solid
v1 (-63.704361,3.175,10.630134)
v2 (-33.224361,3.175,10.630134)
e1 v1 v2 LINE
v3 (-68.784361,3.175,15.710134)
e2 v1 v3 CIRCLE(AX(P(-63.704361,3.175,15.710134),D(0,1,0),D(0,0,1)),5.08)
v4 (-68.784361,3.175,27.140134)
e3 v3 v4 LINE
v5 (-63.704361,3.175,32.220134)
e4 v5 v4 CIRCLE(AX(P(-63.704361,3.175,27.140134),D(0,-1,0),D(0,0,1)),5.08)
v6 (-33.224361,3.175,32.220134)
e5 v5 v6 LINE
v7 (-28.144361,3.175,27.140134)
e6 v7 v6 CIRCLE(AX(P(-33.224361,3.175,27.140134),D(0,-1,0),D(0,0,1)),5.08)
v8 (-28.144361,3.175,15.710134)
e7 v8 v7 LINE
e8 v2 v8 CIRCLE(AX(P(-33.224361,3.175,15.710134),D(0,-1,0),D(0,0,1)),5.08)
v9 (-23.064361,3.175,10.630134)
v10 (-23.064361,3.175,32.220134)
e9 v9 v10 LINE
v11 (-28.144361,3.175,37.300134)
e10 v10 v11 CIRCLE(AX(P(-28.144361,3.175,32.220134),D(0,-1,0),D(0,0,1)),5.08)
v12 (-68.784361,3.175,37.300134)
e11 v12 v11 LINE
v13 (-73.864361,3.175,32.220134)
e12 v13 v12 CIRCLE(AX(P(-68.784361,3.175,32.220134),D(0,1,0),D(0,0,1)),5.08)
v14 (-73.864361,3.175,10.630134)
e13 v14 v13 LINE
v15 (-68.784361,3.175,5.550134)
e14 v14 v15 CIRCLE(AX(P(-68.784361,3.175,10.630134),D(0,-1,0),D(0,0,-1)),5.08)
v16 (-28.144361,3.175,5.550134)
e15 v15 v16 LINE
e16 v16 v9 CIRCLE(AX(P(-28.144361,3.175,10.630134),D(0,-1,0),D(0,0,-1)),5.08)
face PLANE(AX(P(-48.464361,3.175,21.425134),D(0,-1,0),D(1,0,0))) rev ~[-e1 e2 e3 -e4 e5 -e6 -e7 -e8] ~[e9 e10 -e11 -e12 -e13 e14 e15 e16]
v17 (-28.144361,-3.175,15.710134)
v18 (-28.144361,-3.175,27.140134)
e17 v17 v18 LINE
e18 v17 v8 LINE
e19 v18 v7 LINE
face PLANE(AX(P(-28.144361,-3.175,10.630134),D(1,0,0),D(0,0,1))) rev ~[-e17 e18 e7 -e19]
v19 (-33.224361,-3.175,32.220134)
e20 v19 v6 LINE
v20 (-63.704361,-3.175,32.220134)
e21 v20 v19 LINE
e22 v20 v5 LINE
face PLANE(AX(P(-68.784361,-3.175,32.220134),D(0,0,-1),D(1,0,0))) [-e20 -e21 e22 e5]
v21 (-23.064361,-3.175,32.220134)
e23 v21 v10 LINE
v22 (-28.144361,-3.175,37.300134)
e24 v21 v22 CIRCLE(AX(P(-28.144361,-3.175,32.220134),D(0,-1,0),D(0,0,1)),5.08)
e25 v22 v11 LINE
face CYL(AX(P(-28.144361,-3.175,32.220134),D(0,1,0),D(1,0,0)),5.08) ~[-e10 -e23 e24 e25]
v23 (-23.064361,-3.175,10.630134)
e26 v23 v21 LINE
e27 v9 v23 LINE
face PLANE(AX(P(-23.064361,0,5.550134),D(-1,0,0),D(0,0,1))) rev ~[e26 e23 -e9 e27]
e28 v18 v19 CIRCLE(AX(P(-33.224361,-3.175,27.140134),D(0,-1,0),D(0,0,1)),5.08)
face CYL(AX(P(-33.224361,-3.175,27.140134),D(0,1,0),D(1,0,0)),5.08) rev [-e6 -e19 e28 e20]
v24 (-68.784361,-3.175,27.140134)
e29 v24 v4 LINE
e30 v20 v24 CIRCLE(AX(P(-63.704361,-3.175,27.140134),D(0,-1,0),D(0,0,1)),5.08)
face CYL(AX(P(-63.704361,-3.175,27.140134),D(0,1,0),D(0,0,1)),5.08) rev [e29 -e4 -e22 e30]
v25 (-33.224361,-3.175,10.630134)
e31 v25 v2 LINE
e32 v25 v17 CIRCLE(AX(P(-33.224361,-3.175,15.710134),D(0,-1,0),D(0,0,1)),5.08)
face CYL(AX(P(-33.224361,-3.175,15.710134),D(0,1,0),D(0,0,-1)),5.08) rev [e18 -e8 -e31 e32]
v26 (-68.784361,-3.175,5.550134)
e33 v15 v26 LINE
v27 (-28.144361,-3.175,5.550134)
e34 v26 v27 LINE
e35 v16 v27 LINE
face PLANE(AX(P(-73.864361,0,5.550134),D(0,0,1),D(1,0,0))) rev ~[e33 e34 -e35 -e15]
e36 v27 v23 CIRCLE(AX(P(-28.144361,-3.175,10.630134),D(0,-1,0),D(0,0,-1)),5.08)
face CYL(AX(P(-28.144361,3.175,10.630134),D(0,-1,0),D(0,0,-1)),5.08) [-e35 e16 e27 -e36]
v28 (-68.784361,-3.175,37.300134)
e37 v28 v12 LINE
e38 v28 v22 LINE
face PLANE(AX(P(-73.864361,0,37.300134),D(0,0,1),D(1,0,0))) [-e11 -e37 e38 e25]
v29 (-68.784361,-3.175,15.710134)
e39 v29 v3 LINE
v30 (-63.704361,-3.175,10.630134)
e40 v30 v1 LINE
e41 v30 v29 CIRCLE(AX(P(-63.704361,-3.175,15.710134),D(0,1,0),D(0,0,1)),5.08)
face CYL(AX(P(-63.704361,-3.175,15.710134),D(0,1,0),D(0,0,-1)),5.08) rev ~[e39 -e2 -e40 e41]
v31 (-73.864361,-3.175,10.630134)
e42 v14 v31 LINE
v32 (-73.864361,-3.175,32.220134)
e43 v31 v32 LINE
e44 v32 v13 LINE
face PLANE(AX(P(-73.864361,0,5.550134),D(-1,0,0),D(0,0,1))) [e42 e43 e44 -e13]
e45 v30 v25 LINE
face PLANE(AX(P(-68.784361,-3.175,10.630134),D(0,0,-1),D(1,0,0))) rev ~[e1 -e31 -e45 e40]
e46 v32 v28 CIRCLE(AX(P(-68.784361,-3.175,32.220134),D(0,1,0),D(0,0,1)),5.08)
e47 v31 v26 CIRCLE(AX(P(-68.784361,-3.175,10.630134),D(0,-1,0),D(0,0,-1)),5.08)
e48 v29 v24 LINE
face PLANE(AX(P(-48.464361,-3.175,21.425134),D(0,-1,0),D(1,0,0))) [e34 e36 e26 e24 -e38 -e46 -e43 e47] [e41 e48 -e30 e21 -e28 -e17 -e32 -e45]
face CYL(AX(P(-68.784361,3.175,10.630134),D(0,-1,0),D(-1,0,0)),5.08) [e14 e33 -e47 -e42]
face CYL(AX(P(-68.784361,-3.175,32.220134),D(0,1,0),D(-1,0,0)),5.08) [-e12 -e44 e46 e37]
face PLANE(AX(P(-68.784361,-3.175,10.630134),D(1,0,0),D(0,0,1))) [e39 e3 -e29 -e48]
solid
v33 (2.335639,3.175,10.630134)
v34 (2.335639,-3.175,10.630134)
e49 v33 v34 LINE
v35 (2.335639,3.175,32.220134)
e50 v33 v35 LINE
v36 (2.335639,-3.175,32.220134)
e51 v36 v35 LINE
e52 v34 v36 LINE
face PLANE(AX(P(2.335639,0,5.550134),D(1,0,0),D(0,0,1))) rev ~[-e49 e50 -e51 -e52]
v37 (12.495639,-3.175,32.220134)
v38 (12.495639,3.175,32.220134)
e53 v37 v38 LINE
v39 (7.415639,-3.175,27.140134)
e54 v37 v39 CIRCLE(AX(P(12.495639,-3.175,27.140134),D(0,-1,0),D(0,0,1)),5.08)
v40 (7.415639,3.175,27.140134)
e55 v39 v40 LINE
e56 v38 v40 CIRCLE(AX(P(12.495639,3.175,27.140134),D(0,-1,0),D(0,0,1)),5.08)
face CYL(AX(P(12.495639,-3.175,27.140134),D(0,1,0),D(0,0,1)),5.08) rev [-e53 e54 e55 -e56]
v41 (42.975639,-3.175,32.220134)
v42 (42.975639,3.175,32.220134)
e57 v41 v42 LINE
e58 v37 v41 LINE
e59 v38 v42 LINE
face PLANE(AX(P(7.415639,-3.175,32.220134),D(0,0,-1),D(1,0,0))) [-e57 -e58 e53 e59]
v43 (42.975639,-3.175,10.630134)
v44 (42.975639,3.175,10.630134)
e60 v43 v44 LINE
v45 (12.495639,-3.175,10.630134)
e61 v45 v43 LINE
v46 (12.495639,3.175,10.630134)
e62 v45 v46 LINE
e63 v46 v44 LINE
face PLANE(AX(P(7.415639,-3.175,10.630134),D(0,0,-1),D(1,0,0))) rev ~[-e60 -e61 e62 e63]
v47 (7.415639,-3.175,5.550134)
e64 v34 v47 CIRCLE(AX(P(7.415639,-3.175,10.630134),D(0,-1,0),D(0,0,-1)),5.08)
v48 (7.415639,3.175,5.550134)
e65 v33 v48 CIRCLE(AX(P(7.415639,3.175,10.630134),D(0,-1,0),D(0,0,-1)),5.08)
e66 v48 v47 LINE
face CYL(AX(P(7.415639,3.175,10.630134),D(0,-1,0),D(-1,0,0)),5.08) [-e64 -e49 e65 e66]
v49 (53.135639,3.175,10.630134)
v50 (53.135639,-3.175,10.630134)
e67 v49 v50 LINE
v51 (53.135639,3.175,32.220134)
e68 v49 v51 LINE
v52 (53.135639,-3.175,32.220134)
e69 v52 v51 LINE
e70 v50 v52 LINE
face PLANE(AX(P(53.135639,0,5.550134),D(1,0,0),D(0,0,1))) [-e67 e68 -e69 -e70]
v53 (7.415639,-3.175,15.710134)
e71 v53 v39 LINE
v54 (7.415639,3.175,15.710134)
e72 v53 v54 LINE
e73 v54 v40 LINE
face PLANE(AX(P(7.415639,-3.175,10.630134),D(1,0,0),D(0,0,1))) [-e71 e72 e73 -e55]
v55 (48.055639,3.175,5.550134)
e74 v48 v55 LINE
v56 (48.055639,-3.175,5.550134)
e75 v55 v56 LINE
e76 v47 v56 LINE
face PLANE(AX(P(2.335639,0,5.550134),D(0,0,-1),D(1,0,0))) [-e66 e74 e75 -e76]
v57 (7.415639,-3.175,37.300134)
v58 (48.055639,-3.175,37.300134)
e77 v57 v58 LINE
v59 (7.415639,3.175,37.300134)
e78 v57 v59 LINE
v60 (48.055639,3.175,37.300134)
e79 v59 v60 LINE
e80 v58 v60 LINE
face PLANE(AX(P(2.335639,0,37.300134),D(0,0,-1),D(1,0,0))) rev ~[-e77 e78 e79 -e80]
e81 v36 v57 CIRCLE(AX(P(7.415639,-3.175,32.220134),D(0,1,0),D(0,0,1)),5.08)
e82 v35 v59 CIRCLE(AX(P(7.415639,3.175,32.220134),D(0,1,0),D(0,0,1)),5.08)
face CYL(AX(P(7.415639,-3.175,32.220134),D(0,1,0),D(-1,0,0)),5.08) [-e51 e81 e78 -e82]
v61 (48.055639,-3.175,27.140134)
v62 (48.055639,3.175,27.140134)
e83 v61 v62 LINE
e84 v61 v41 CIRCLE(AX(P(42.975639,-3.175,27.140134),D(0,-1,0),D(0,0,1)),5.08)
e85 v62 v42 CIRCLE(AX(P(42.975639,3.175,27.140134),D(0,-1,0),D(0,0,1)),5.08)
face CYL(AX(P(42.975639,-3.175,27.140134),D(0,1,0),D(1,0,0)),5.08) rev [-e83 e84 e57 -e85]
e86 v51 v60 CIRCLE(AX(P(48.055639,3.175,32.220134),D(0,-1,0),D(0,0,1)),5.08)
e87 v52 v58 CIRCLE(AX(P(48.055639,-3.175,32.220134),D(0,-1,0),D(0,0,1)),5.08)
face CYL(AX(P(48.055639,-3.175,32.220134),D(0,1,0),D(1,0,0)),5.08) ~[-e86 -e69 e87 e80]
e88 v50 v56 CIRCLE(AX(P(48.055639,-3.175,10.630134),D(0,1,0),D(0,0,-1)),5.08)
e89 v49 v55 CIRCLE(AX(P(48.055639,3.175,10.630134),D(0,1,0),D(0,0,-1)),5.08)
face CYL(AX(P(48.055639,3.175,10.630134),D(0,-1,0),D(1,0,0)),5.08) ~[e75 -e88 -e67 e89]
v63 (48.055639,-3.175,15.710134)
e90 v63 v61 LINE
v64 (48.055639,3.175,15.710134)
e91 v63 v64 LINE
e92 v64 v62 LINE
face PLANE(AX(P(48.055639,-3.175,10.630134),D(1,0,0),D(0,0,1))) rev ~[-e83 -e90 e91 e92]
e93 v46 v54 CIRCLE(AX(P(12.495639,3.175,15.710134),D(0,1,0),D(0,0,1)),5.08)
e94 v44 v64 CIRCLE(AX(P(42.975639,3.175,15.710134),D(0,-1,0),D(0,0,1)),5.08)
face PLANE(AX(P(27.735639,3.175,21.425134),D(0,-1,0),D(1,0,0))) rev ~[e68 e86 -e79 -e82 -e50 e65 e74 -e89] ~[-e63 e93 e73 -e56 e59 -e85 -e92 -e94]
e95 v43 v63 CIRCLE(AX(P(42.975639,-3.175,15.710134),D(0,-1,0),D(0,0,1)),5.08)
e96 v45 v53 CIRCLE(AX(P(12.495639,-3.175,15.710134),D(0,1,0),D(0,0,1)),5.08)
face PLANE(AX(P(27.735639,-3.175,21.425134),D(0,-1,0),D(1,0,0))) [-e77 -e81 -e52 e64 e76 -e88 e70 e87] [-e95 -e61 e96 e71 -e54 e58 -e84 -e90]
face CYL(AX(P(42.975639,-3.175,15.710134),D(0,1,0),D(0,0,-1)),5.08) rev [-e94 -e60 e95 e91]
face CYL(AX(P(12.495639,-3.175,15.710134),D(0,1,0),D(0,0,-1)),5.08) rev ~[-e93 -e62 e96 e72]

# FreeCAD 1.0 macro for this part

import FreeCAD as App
import Part
import Sketcher
from FreeCAD import Vector
Q = App.Units.Quantity


def edges_at(feature, points):
    """Names of the edges that pass closest to the given points."""
    edges = feature.Shape.Edges
    near = lambda p: min(range(len(edges)), key=lambda i: edges[i].distToShape(Part.Vertex(*p))[0])
    return sorted({f"Edge{near(p) + 1}" for p in points})

doc = App.newDocument("Part")
body = doc.addObject("PartDesign::Body", "Body")
body.AllowCompound = True

sketch1 = body.newObject("Sketcher::SketchObject", "Sketch")
sketch1.AttachmentSupport = (doc.getObject("XZ_Plane"), [""])
sketch1.MapMode = "FlatFace"
sketch1.addGeometry([
    Part.LineSegment(Vector(-74, 37, 0), Vector(-74, 6, 0)),
    Part.LineSegment(Vector(-74, 6, 0), Vector(-23, 6, 0)),
    Part.LineSegment(Vector(-23, 6, 0), Vector(-23, 37, 0)),
    Part.LineSegment(Vector(-23, 37, 0), Vector(-74, 37, 0)),
    Part.LineSegment(Vector(2, 37, 0), Vector(2, 6, 0)),
    Part.LineSegment(Vector(2, 6, 0), Vector(53, 6, 0)),
    Part.LineSegment(Vector(53, 6, 0), Vector(53, 37, 0)),
    Part.LineSegment(Vector(53, 37, 0), Vector(2, 37, 0)),
], False)
sketch1.addConstraint([
    Sketcher.Constraint("Coincident", 0, 2, 1, 1),
    Sketcher.Constraint("Coincident", 1, 2, 2, 1),
    Sketcher.Constraint("Coincident", 2, 2, 3, 1),
    Sketcher.Constraint("Coincident", 3, 2, 0, 1),
    Sketcher.Constraint("Coincident", 4, 2, 5, 1),
    Sketcher.Constraint("Coincident", 5, 2, 6, 1),
    Sketcher.Constraint("Coincident", 6, 2, 7, 1),
    Sketcher.Constraint("Coincident", 7, 2, 4, 1),
    Sketcher.Constraint("Vertical", 0),
    Sketcher.Constraint("Horizontal", 1),
    Sketcher.Constraint("Vertical", 2),
    Sketcher.Constraint("Horizontal", 3),
    Sketcher.Constraint("Vertical", 4),
    Sketcher.Constraint("Horizontal", 5),
    Sketcher.Constraint("Vertical", 6),
    Sketcher.Constraint("Horizontal", 7),
    Sketcher.Constraint("Horizontal", 1, 2, 4, 2),
    Sketcher.Constraint("Horizontal", 3, 2, 6, 2),
    Sketcher.Constraint("Equal", 3, 5),
    Sketcher.Constraint("DistanceX", 1, 1, 1, 2, Q("2 in")),
    Sketcher.Constraint("DistanceX", 1, 2, 4, 2, Q("1 in")),
    Sketcher.Constraint("DistanceY", 0, 2, 0, 1, Q("1.25 in")),
    Sketcher.Constraint("DistanceX", 0, 2, -1, 1, Q("73.864361 mm")),
    Sketcher.Constraint("DistanceY", -1, 1, 0, 2, Q("5.550134 mm")),
])
pad1 = body.newObject("PartDesign::Pad", "Pad")
pad1.Profile = sketch1
pad1.Length = Q("0.25 in")
pad1.Midplane = True
doc.recompute()

fillet = body.newObject("PartDesign::Fillet", "Fillet")
fillet.Base = (pad1, edges_at(pad1, [
    (-73.864, 0, 37.3),
    (-73.864, 0, 5.55),
    (-23.064, 0, 5.55),
    (-23.064, 0, 37.3),
    (2.336, 0, 37.3),
    (53.136, 0, 37.3),
    (53.136, 0, 5.55),
    (2.336, 0, 5.55),
]))
fillet.Radius = Q("0.2 in")

sketch2 = body.newObject("Sketcher::SketchObject", "Sketch001")
sketch2.AttachmentSupport = (doc.getObject("XZ_Plane"), [""])
sketch2.MapMode = "FlatFace"
sketch2.AttachmentOffset = App.Placement(Vector(0, 0, 0.125 * 25.4), App.Rotation())
sketch2.addGeometry([
    Part.LineSegment(Vector(-69, 32, 0), Vector(-69, 11, 0)),
    Part.LineSegment(Vector(-69, 11, 0), Vector(-28, 11, 0)),
    Part.LineSegment(Vector(-28, 11, 0), Vector(-28, 32, 0)),
    Part.LineSegment(Vector(-28, 32, 0), Vector(-69, 32, 0)),
], False)
sketch2.addConstraint([
    Sketcher.Constraint("Coincident", 0, 2, 1, 1),
    Sketcher.Constraint("Coincident", 1, 2, 2, 1),
    Sketcher.Constraint("Coincident", 2, 2, 3, 1),
    Sketcher.Constraint("Coincident", 3, 2, 0, 1),
    Sketcher.Constraint("Vertical", 0),
    Sketcher.Constraint("Horizontal", 1),
    Sketcher.Constraint("Vertical", 2),
    Sketcher.Constraint("Horizontal", 3),
    Sketcher.Constraint("DistanceX", 1, 1, 1, 2, Q("1.6 in")),
    Sketcher.Constraint("DistanceY", 0, 2, 0, 1, Q("0.85 in")),
    Sketcher.Constraint("DistanceX", 0, 2, -1, 1, Q("68.784361 mm")),
    Sketcher.Constraint("DistanceY", -1, 1, 0, 2, Q("10.630134 mm")),
])
pocket1 = body.newObject("PartDesign::Pocket", "Pocket")
pocket1.Profile = sketch2
pocket1.Length = Q("1 in")
doc.recompute()

fillet2 = body.newObject("PartDesign::Fillet", "Fillet001")
fillet2.Base = (pocket1, edges_at(pocket1, [
    (-28.144, 0, 32.22),
    (-68.784, 0, 10.63),
    (-68.784, 0, 32.22),
    (-28.144, 0, 10.63),
]))
fillet2.Radius = Q("0.2 in")

sketch3 = body.newObject("Sketcher::SketchObject", "Sketch002")
sketch3.AttachmentSupport = (doc.getObject("XZ_Plane"), [""])
sketch3.MapMode = "FlatFace"
sketch3.AttachmentOffset = App.Placement(Vector(0, 0, 0.125 * 25.4), App.Rotation())
sketch3.addGeometry([
    Part.LineSegment(Vector(7, 32, 0), Vector(7, 11, 0)),
    Part.LineSegment(Vector(7, 11, 0), Vector(48, 11, 0)),
    Part.LineSegment(Vector(48, 11, 0), Vector(48, 32, 0)),
    Part.LineSegment(Vector(48, 32, 0), Vector(7, 32, 0)),
], False)
sketch3.addConstraint([
    Sketcher.Constraint("Coincident", 0, 2, 1, 1),
    Sketcher.Constraint("Coincident", 1, 2, 2, 1),
    Sketcher.Constraint("Coincident", 2, 2, 3, 1),
    Sketcher.Constraint("Coincident", 3, 2, 0, 1),
    Sketcher.Constraint("Vertical", 0),
    Sketcher.Constraint("Horizontal", 1),
    Sketcher.Constraint("Vertical", 2),
    Sketcher.Constraint("Horizontal", 3),
    Sketcher.Constraint("DistanceX", 1, 1, 1, 2, Q("1.6 in")),
    Sketcher.Constraint("DistanceY", 0, 2, 0, 1, Q("0.85 in")),
    Sketcher.Constraint("DistanceX", -1, 1, 0, 2, Q("7.415639 mm")),
    Sketcher.Constraint("DistanceY", -1, 1, 0, 2, Q("10.630134 mm")),
])
pocket2 = body.newObject("PartDesign::Pocket", "Pocket001")
pocket2.Profile = sketch3
pocket2.Length = Q("1 in")
doc.recompute()

fillet3 = body.newObject("PartDesign::Fillet", "Fillet002")
fillet3.Base = (pocket2, edges_at(pocket2, [
    (48.056, 0, 10.63),
    (7.416, 0, 10.63),
    (7.416, 0, 32.22),
    (48.056, 0, 32.22),
]))
fillet3.Radius = Q("0.2 in")

doc.recompute()
